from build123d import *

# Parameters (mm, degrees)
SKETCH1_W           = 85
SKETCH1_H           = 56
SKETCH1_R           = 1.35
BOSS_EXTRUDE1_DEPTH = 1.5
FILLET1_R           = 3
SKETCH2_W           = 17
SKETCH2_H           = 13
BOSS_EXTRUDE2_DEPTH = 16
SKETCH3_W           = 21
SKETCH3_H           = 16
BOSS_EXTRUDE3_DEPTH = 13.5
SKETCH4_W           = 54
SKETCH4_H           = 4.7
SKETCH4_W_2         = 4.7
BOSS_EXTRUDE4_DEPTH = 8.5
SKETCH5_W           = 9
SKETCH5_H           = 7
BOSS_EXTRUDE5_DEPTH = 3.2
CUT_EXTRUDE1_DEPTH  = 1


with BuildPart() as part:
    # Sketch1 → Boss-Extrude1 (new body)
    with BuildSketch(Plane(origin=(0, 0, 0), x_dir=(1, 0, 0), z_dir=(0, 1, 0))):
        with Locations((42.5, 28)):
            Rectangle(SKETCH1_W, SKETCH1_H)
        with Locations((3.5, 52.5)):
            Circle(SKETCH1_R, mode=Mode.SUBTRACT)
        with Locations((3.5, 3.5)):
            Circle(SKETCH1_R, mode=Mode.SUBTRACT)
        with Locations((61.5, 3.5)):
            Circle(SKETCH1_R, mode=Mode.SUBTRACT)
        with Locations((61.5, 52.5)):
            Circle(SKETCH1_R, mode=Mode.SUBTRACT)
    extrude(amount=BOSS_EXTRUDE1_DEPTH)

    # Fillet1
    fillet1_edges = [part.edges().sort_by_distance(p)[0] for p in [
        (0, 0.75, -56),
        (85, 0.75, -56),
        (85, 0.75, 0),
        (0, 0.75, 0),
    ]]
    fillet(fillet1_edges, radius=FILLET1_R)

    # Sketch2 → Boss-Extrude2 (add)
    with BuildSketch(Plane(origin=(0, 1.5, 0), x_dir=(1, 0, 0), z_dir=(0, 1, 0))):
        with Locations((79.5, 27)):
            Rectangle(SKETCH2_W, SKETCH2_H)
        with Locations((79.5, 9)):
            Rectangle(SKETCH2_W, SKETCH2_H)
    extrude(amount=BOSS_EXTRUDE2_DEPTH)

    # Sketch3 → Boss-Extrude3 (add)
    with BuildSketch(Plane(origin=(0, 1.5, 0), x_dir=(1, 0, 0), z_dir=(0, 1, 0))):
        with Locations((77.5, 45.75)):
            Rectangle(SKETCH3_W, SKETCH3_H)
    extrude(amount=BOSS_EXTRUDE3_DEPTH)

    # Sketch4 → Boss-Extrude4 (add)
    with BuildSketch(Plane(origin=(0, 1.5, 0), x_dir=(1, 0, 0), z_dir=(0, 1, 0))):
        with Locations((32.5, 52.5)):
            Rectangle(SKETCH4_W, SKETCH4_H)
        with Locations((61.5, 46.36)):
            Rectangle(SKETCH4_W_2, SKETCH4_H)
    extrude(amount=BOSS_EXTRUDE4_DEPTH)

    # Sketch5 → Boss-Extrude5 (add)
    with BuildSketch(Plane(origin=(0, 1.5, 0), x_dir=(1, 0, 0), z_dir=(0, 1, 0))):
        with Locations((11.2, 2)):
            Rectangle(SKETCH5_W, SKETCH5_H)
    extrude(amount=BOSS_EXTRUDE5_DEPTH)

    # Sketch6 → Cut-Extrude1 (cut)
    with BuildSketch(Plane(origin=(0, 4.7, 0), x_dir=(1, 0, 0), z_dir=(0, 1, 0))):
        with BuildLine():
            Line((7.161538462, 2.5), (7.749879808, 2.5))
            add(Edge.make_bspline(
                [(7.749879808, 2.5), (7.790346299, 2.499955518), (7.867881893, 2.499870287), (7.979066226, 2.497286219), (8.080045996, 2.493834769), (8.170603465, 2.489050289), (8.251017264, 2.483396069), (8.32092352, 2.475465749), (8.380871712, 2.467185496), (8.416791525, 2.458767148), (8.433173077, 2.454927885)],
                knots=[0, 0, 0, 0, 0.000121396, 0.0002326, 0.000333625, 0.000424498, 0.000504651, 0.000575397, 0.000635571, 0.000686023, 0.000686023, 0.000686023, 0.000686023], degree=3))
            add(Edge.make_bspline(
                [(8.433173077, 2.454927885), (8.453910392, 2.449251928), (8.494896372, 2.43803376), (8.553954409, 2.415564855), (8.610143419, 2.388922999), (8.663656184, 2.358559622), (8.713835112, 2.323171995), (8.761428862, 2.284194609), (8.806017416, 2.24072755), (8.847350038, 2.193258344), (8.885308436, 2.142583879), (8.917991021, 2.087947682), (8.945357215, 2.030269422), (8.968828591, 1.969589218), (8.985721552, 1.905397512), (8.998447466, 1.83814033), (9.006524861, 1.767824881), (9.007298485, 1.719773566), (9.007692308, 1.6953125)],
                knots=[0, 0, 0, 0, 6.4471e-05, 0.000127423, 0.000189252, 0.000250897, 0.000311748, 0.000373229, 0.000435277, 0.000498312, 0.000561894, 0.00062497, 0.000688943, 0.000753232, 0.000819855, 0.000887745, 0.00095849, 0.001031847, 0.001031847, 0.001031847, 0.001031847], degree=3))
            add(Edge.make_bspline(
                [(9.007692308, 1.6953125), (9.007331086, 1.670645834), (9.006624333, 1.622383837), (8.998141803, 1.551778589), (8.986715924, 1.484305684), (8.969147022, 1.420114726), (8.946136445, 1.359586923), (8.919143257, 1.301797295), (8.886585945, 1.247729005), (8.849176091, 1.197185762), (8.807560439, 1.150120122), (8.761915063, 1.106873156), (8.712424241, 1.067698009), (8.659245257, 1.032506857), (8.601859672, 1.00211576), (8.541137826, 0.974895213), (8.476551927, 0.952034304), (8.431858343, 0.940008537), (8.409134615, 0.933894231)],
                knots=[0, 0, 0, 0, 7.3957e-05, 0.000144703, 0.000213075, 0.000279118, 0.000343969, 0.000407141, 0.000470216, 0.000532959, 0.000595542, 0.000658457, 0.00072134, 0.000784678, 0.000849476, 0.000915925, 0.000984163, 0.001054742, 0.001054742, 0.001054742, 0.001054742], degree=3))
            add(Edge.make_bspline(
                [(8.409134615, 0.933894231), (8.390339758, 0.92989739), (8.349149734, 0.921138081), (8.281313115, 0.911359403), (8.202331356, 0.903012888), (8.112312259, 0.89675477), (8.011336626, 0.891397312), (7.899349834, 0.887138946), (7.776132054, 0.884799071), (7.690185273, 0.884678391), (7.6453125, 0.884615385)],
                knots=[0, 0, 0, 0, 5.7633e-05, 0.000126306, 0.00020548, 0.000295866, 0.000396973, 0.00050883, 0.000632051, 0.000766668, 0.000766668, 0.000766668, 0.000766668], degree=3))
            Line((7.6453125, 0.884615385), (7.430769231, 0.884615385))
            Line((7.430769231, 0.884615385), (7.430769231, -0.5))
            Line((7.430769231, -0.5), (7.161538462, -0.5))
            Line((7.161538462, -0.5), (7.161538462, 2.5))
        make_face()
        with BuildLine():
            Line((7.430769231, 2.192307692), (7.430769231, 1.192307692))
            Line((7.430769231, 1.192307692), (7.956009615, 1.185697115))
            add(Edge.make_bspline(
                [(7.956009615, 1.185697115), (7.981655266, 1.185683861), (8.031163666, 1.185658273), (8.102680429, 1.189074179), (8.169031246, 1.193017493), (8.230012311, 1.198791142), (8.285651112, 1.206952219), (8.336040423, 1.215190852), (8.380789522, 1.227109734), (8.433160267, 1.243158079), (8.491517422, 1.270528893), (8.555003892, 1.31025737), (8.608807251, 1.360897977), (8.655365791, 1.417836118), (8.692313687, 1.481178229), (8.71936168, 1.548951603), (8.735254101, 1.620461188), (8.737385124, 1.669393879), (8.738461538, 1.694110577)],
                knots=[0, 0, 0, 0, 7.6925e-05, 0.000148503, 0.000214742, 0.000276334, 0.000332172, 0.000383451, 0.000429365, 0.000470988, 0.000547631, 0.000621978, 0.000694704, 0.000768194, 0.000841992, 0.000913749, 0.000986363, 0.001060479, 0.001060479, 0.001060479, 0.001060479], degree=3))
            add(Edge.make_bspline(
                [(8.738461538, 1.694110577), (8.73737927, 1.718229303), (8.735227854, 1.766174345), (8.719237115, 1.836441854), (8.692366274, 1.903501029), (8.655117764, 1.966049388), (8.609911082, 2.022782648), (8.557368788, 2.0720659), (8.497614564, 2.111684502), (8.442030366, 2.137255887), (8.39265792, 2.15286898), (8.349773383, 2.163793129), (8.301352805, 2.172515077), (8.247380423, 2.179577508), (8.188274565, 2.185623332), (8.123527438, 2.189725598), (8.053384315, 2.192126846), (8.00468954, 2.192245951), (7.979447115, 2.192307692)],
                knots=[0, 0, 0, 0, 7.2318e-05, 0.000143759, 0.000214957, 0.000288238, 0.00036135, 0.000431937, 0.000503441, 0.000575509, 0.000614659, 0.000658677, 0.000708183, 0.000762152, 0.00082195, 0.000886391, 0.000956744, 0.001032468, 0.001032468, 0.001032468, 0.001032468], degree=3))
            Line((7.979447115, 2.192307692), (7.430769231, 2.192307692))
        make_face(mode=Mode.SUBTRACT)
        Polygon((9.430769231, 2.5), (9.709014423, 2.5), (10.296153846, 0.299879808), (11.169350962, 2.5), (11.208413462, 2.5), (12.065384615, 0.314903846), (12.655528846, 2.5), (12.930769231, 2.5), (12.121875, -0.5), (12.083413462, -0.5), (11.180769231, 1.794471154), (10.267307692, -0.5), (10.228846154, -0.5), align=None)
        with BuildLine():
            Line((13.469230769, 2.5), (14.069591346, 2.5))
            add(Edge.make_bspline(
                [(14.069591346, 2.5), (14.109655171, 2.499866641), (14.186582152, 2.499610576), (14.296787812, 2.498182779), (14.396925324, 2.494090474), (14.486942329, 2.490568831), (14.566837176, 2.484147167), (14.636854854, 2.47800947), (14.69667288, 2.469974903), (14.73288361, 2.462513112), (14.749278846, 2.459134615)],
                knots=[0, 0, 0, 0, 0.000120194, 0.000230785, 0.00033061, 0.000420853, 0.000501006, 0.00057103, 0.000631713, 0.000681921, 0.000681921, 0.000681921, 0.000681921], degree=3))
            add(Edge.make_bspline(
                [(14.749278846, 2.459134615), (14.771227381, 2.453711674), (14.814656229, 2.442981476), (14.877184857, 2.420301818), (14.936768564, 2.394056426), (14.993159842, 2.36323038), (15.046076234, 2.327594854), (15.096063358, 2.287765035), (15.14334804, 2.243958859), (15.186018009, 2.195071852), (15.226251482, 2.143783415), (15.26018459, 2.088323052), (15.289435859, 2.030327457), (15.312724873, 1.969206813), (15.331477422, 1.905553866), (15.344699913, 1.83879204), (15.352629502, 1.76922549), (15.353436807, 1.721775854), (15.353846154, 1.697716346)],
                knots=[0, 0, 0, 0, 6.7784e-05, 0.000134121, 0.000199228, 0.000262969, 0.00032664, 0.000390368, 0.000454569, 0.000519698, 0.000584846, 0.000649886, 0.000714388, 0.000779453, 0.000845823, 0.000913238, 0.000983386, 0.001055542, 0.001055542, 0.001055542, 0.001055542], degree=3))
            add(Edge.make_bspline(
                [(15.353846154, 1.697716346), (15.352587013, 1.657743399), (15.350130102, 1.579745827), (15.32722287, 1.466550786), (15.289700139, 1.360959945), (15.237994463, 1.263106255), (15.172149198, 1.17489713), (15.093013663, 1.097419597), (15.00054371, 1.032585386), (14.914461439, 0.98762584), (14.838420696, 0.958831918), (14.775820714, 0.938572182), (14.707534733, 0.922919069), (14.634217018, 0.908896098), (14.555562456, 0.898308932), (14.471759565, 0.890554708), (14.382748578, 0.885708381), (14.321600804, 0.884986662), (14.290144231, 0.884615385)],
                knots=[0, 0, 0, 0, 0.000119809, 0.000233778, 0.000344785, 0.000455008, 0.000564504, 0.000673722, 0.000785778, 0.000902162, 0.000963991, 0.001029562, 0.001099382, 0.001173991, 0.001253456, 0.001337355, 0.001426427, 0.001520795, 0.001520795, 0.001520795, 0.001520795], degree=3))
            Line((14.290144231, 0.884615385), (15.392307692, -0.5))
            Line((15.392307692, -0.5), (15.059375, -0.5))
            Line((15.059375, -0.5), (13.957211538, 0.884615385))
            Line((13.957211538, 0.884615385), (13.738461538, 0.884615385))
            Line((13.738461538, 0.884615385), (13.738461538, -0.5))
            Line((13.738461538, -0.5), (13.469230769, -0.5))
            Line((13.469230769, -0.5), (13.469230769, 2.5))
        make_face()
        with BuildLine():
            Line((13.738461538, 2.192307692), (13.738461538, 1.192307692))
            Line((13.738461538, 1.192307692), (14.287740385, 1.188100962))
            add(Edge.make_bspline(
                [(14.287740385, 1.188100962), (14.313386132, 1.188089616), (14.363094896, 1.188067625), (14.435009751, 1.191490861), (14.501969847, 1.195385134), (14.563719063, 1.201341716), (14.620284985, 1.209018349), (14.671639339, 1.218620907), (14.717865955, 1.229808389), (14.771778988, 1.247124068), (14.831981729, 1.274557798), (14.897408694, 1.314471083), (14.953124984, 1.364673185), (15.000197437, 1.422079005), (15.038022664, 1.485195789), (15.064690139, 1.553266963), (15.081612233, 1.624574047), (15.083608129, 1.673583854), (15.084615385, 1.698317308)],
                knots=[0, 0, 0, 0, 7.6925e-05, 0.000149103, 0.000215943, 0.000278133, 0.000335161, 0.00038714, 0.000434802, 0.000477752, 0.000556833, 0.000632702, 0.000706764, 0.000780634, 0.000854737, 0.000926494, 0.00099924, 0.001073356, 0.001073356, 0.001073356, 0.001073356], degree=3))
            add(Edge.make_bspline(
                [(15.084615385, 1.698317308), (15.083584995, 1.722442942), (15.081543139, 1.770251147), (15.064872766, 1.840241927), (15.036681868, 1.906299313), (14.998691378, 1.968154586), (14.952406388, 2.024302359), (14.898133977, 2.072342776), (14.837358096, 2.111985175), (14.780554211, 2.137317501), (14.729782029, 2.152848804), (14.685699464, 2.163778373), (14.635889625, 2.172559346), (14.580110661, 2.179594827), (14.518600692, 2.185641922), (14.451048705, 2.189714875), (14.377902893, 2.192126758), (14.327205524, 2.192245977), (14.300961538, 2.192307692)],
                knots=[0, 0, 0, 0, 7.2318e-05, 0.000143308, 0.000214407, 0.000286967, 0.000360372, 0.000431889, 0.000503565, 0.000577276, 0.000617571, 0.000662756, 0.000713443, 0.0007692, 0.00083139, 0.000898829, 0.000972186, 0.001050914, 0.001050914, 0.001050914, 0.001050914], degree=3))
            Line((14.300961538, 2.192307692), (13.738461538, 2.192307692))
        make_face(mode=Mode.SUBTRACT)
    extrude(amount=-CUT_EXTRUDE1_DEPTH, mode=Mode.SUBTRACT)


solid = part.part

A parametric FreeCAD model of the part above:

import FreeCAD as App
import Part
import Sketcher
Q = App.Units.Quantity


def edges_at(feature, points):
    """Names of the edges that pass closest to the given points."""
    edges = feature.Shape.Edges
    near = lambda p: min(range(len(edges)), key=lambda i: edges[i].distToShape(Part.Vertex(*p))[0])
    return sorted({f"Edge{near(p) + 1}" for p in points})


def add_polygon(sketch, points):
    """Adds a closed chain of lines whose ends are joined by coincident constraints."""
    first, n = sketch.GeometryCount, len(points)
    for a, b in zip(points, points[1:] + points[:1]):
        sketch.addGeometry(Part.LineSegment(App.Vector(*a, 0), App.Vector(*b, 0)), False)
    for i in range(n):
        sketch.addConstraint(Sketcher.Constraint("Coincident", first + i, 2, first + (i + 1) % n, 1))

doc = App.newDocument("Part")
body = doc.addObject("PartDesign::Body", "Body")

# Sketch on XZ plane
sketch1 = body.newObject("Sketcher::SketchObject", "Sketch")
sketch1.AttachmentSupport = (doc.getObject("XZ_Plane"), [""])
sketch1.MapMode = "FlatFace"
add_polygon(sketch1, [(0, -56), (0, 0), (85, 0), (85, -56)])  # lines 0-3
sketch1.addGeometry(Part.Circle(App.Vector(3.5, -3.5, 0), App.Vector(0, 0, 1), 1.35), False)  # 4
sketch1.addGeometry(Part.Circle(App.Vector(61.5, -3.5, 0), App.Vector(0, 0, 1), 1.35), False)  # 5
sketch1.addGeometry(Part.Circle(App.Vector(3.5, -52.5, 0), App.Vector(0, 0, 1), 1.35), False)  # 6
sketch1.addGeometry(Part.Circle(App.Vector(61.5, -52.5, 0), App.Vector(0, 0, 1), 1.35), False)  # 7
sketch1.addConstraint([
    Sketcher.Constraint("Vertical", 0),
    Sketcher.Constraint("Horizontal", 1),
    Sketcher.Constraint("Vertical", 2),
    Sketcher.Constraint("Horizontal", 3),
    Sketcher.Constraint("Coincident", 0, 2, -1, 1),
    Sketcher.Constraint("Equal", 4, 5),
    Sketcher.Constraint("Equal", 5, 6),
    Sketcher.Constraint("Equal", 6, 7),
    Sketcher.Constraint("Horizontal", 4, 3, 5, 3),
    Sketcher.Constraint("Horizontal", 6, 3, 7, 3),
    Sketcher.Constraint("Vertical", 4, 3, 6, 3),
    Sketcher.Constraint("Vertical", 5, 3, 7, 3),
    Sketcher.Constraint("Diameter", 4, Q("2.7 mm")),
    Sketcher.Constraint("DistanceX", 1, 1, 1, 2, Q("85 mm")),
    Sketcher.Constraint("DistanceY", 0, 1, 0, 2, Q("56 mm")),
    Sketcher.Constraint("DistanceX", 4, 3, 5, 3, Q("58 mm")),
    Sketcher.Constraint("DistanceY", 6, 3, 4, 3, Q("49 mm")),
    Sketcher.Constraint("DistanceX", -1, 1, 4, 3, Q("3.5 mm")),
    Sketcher.Constraint("DistanceY", 4, 3, -1, 1, Q("3.5 mm")),
])
pad1 = body.newObject("PartDesign::Pad", "Pad")
pad1.Profile = sketch1
pad1.Length = 1.5
pad1.Reversed = True
doc.recompute()

fillet = body.newObject("PartDesign::Fillet", "Fillet")
fillet.Base = (pad1, edges_at(pad1, [
    (0, 0.75, -56),
    (85, 0.75, -56),
    (85, 0.75, 0),
    (0, 0.75, 0),
]))
fillet.Radius = 3

# Sketch on XZ plane
sketch2 = body.newObject("Sketcher::SketchObject", "Sketch001")
sketch2.AttachmentSupport = (doc.getObject("XZ_Plane"), [""])
sketch2.MapMode = "FlatFace"
sketch2.AttachmentOffset = App.Placement(App.Vector(0, 0, -1.5), App.Rotation())
add_polygon(sketch2, [(71, -33.5), (71, -20.5), (88, -20.5), (88, -33.5)])  # lines 0-3
add_polygon(sketch2, [(71, -15.5), (71, -2.5), (88, -2.5), (88, -15.5)])  # lines 4-7
sketch2.addConstraint([
    Sketcher.Constraint("Vertical", 0),
    Sketcher.Constraint("Horizontal", 1),
    Sketcher.Constraint("Vertical", 2),
    Sketcher.Constraint("Horizontal", 3),
    Sketcher.Constraint("Vertical", 4),
    Sketcher.Constraint("Horizontal", 5),
    Sketcher.Constraint("Vertical", 6),
    Sketcher.Constraint("Horizontal", 7),
    Sketcher.Constraint("Vertical", 3, 2, 4, 2),
    Sketcher.Constraint("Vertical", 2, 2, 5, 2),
    Sketcher.Constraint("Equal", 2, 4),
    Sketcher.Constraint("DistanceX", 1, 1, 1, 2, Q("17 mm")),
    Sketcher.Constraint("DistanceY", 0, 1, 0, 2, Q("13 mm")),
    Sketcher.Constraint("DistanceX", -1, 1, 0, 2, Q("71 mm")),
    Sketcher.Constraint("DistanceY", 0, 2, 4, 2, Q("18 mm")),
    Sketcher.Constraint("DistanceY", 0, 2, -1, 1, Q("20.5 mm")),
])
pad2 = body.newObject("PartDesign::Pad", "Pad001")
pad2.Profile = sketch2
pad2.Length = 16
pad2.Reversed = True

# Sketch on XZ plane
sketch3 = body.newObject("Sketcher::SketchObject", "Sketch002")
sketch3.AttachmentSupport = (doc.getObject("XZ_Plane"), [""])
sketch3.MapMode = "FlatFace"
sketch3.AttachmentOffset = App.Placement(App.Vector(0, 0, -1.5), App.Rotation())
add_polygon(sketch3, [(67, -53.75), (67, -37.75), (88, -37.75), (88, -53.75)])  # lines 0-3
sketch3.addConstraint([
    Sketcher.Constraint("Vertical", 0),
    Sketcher.Constraint("Horizontal", 1),
    Sketcher.Constraint("Vertical", 2),
    Sketcher.Constraint("Horizontal", 3),
    Sketcher.Constraint("DistanceX", 1, 1, 1, 2, Q("21 mm")),
    Sketcher.Constraint("DistanceY", 0, 1, 0, 2, Q("16 mm")),
    Sketcher.Constraint("DistanceX", -1, 1, 0, 2, Q("67 mm")),
    Sketcher.Constraint("DistanceY", 0, 2, -1, 1, Q("37.75 mm")),
])
pad3 = body.newObject("PartDesign::Pad", "Pad002")
pad3.Profile = sketch3
pad3.Length = 13.5
pad3.Reversed = True

# Sketch on XZ plane
sketch4 = body.newObject("Sketcher::SketchObject", "Sketch003")
sketch4.AttachmentSupport = (doc.getObject("XZ_Plane"), [""])
sketch4.MapMode = "FlatFace"
sketch4.AttachmentOffset = App.Placement(App.Vector(0, 0, -1.5), App.Rotation())
add_polygon(sketch4, [(5.5, -54.85), (5.5, -50.15), (59.5, -50.15), (59.5, -54.85)])  # lines 0-3
add_polygon(sketch4, [(59.15, -48.71), (59.15, -44.01), (63.85, -44.01), (63.85, -48.71)])  # lines 4-7
sketch4.addConstraint([
    Sketcher.Constraint("Vertical", 0),
    Sketcher.Constraint("Horizontal", 1),
    Sketcher.Constraint("Vertical", 2),
    Sketcher.Constraint("Horizontal", 3),
    Sketcher.Constraint("Vertical", 4),
    Sketcher.Constraint("Horizontal", 5),
    Sketcher.Constraint("Vertical", 6),
    Sketcher.Constraint("Horizontal", 7),
    Sketcher.Constraint("Equal", 7, 0),
    Sketcher.Constraint("Equal", 2, 4),
    Sketcher.Constraint("DistanceX", 1, 1, 1, 2, Q("54 mm")),
    Sketcher.Constraint("DistanceX", 5, 1, 5, 2, Q("4.7 mm")),
    Sketcher.Constraint("DistanceX", -1, 1, 0, 2, Q("5.5 mm")),
    Sketcher.Constraint("DistanceY", 0, 2, -1, 1, Q("50.15 mm")),
    Sketcher.Constraint("DistanceX", -1, 1, 4, 2, Q("59.15 mm")),
    Sketcher.Constraint("DistanceY", 4, 2, -1, 1, Q("44.01 mm")),
])
pad4 = body.newObject("PartDesign::Pad", "Pad003")
pad4.Profile = sketch4
pad4.Length = 8.5
pad4.Reversed = True

# Sketch on XZ plane
sketch5 = body.newObject("Sketcher::SketchObject", "Sketch004")
sketch5.AttachmentSupport = (doc.getObject("XZ_Plane"), [""])
sketch5.MapMode = "FlatFace"
sketch5.AttachmentOffset = App.Placement(App.Vector(0, 0, -1.5), App.Rotation())
add_polygon(sketch5, [(6.7, -5.5), (6.7, 1.5), (15.7, 1.5), (15.7, -5.5)])  # lines 0-3
sketch5.addConstraint([
    Sketcher.Constraint("Vertical", 0),
    Sketcher.Constraint("Horizontal", 1),
    Sketcher.Constraint("Vertical", 2),
    Sketcher.Constraint("Horizontal", 3),
    Sketcher.Constraint("DistanceX", 1, 1, 1, 2, Q("9 mm")),
    Sketcher.Constraint("DistanceY", 0, 1, 0, 2, Q("7 mm")),
    Sketcher.Constraint("DistanceX", -1, 1, 0, 2, Q("6.7 mm")),
    Sketcher.Constraint("DistanceY", -1, 1, 0, 2, Q("1.5 mm")),
])
pad5 = body.newObject("PartDesign::Pad", "Pad004")
pad5.Profile = sketch5
pad5.Length = 3.2
pad5.Reversed = True

# Sketch on XZ plane
sketch6 = body.newObject("Sketcher::SketchObject", "Sketch005")
sketch6.AttachmentSupport = (doc.getObject("XZ_Plane"), [""])
sketch6.MapMode = "FlatFace"
sketch6.AttachmentOffset = App.Placement(App.Vector(0, 0, -4.7), App.Rotation())
sketch6.addGeometry(Part.LineSegment(App.Vector(7.74988, -2.5, 0), App.Vector(7.161538, -2.5, 0)), False)  # 0
sketch6.addGeometry(Part.LineSegment(App.Vector(7.161538, -2.5, 0), App.Vector(7.161538, 0.5, 0)), False)  # 1
sketch6.addGeometry(Part.LineSegment(App.Vector(7.161538, 0.5, 0), App.Vector(7.430769, 0.5, 0)), False)  # 2
sketch6.addGeometry(Part.LineSegment(App.Vector(7.430769, 0.5, 0), App.Vector(7.430769, -0.884615, 0)), False)  # 3
sketch6.addGeometry(Part.LineSegment(App.Vector(7.430769, -0.884615, 0), App.Vector(7.645313, -0.884615, 0)), False)  # 4
sketch6.addGeometry(Part.BSplineCurve([App.Vector(8.409135, -0.933894, 0), App.Vector(8.39034, -0.929897, 0), App.Vector(8.34915, -0.921138, 0), App.Vector(8.281313, -0.911359, 0), App.Vector(8.202331, -0.903013, 0), App.Vector(8.112312, -0.896755, 0), App.Vector(8.011337, -0.891397, 0), App.Vector(7.89935, -0.887139, 0), App.Vector(7.776132, -0.884799, 0), App.Vector(7.690185, -0.884678, 0), App.Vector(7.645313, -0.884615, 0)], [4, 1, 1, 1, 1, 1, 1, 1, 4], [0, 0.000057633, 0.000126306, 0.00020548, 0.000295866, 0.000396973, 0.00050883, 0.000632051, 0.000766668], False, 3, [1, 1, 1, 1, 1, 1, 1, 1, 1, 1, 1], False), False)  # 5
sketch6.addGeometry(Part.BSplineCurve([App.Vector(9.007692, -1.695312, 0), App.Vector(9.007331, -1.670646, 0), App.Vector(9.006624, -1.622384, 0), App.Vector(8.998142, -1.551779, 0), App.Vector(8.986716, -1.484306, 0), App.Vector(8.969147, -1.420115, 0), App.Vector(8.946136, -1.359587, 0), App.Vector(8.919143, -1.301797, 0), App.Vector(8.886586, -1.247729, 0), App.Vector(8.849176, -1.197186, 0), App.Vector(8.80756, -1.15012, 0), App.Vector(8.761915, -1.106873, 0), App.Vector(8.712424, -1.067698, 0), App.Vector(8.659245, -1.032507, 0), App.Vector(8.60186, -1.002116, 0), App.Vector(8.541138, -0.974895, 0), App.Vector(8.476552, -0.952034, 0), App.Vector(8.431858, -0.940009, 0), App.Vector(8.409135, -0.933894, 0)], [4, 1, 1, 1, 1, 1, 1, 1, 1, 1, 1, 1, 1, 1, 1, 1, 4], [0, 0.000073957, 0.000144703, 0.000213075, 0.000279118, 0.000343969, 0.000407141, 0.000470216, 0.000532959, 0.000595542, 0.000658457, 0.00072134, 0.000784678, 0.000849476, 0.000915925, 0.000984163, 0.001054742], False, 3, [1, 1, 1, 1, 1, 1, 1, 1, 1, 1, 1, 1, 1, 1, 1, 1, 1, 1, 1], False), False)  # 6
sketch6.addGeometry(Part.BSplineCurve([App.Vector(8.433173, -2.454928, 0), App.Vector(8.45391, -2.449252, 0), App.Vector(8.494896, -2.438034, 0), App.Vector(8.553954, -2.415565, 0), App.Vector(8.610143, -2.388923, 0), App.Vector(8.663656, -2.35856, 0), App.Vector(8.713835, -2.323172, 0), App.Vector(8.761429, -2.284195, 0), App.Vector(8.806017, -2.240728, 0), App.Vector(8.84735, -2.193258, 0), App.Vector(8.885308, -2.142584, 0), App.Vector(8.917991, -2.087948, 0), App.Vector(8.945357, -2.030269, 0), App.Vector(8.968829, -1.969589, 0), App.Vector(8.985722, -1.905398, 0), App.Vector(8.998447, -1.83814, 0), App.Vector(9.006525, -1.767825, 0), App.Vector(9.007298, -1.719774, 0), App.Vector(9.007692, -1.695312, 0)], [4, 1, 1, 1, 1, 1, 1, 1, 1, 1, 1, 1, 1, 1, 1, 1, 4], [0, 0.000064471, 0.000127423, 0.000189252, 0.000250897, 0.000311748, 0.000373229, 0.000435277, 0.000498312, 0.000561894, 0.00062497, 0.000688943, 0.000753232, 0.000819855, 0.000887745, 0.00095849, 0.001031847], False, 3, [1, 1, 1, 1, 1, 1, 1, 1, 1, 1, 1, 1, 1, 1, 1, 1, 1, 1, 1], False), False)  # 7
sketch6.addGeometry(Part.BSplineCurve([App.Vector(7.74988, -2.5, 0), App.Vector(7.790346, -2.499956, 0), App.Vector(7.867882, -2.49987, 0), App.Vector(7.979066, -2.497286, 0), App.Vector(8.080046, -2.493835, 0), App.Vector(8.170603, -2.48905, 0), App.Vector(8.251017, -2.483396, 0), App.Vector(8.320924, -2.475466, 0), App.Vector(8.380872, -2.467185, 0), App.Vector(8.416792, -2.458767, 0), App.Vector(8.433173, -2.454928, 0)], [4, 1, 1, 1, 1, 1, 1, 1, 4], [0, 0.000121396, 0.0002326, 0.000333625, 0.000424498, 0.000504651, 0.000575397, 0.000635571, 0.000686023], False, 3, [1, 1, 1, 1, 1, 1, 1, 1, 1, 1, 1], False), False)  # 8
sketch6.addGeometry(Part.LineSegment(App.Vector(7.430769, -2.192308, 0), App.Vector(7.979447, -2.192308, 0)), False)  # 9
sketch6.addGeometry(Part.BSplineCurve([App.Vector(8.738462, -1.694111, 0), App.Vector(8.737379, -1.718229, 0), App.Vector(8.735228, -1.766174, 0), App.Vector(8.719237, -1.836442, 0), App.Vector(8.692366, -1.903501, 0), App.Vector(8.655118, -1.966049, 0), App.Vector(8.609911, -2.022783, 0), App.Vector(8.557369, -2.072066, 0), App.Vector(8.497615, -2.111685, 0), App.Vector(8.44203, -2.137256, 0), App.Vector(8.392658, -2.152869, 0), App.Vector(8.349773, -2.163793, 0), App.Vector(8.301353, -2.172515, 0), App.Vector(8.24738, -2.179578, 0), App.Vector(8.188275, -2.185623, 0), App.Vector(8.123527, -2.189726, 0), App.Vector(8.053384, -2.192127, 0), App.Vector(8.00469, -2.192246, 0), App.Vector(7.979447, -2.192308, 0)], [4, 1, 1, 1, 1, 1, 1, 1, 1, 1, 1, 1, 1, 1, 1, 1, 4], [0, 0.000072318, 0.000143759, 0.000214957, 0.000288238, 0.00036135, 0.000431937, 0.000503441, 0.000575509, 0.000614659, 0.000658677, 0.000708183, 0.000762152, 0.00082195, 0.000886391, 0.000956744, 0.001032468], False, 3, [1, 1, 1, 1, 1, 1, 1, 1, 1, 1, 1, 1, 1, 1, 1, 1, 1, 1, 1], False), False)  # 10
sketch6.addGeometry(Part.BSplineCurve([App.Vector(7.95601, -1.185697, 0), App.Vector(7.981655, -1.185684, 0), App.Vector(8.031164, -1.185658, 0), App.Vector(8.10268, -1.189074, 0), App.Vector(8.169031, -1.193017, 0), App.Vector(8.230012, -1.198791, 0), App.Vector(8.285651, -1.206952, 0), App.Vector(8.33604, -1.215191, 0), App.Vector(8.38079, -1.22711, 0), App.Vector(8.43316, -1.243158, 0), App.Vector(8.491517, -1.270529, 0), App.Vector(8.555004, -1.310257, 0), App.Vector(8.608807, -1.360898, 0), App.Vector(8.655366, -1.417836, 0), App.Vector(8.692314, -1.481178, 0), App.Vector(8.719362, -1.548952, 0), App.Vector(8.735254, -1.620461, 0), App.Vector(8.737385, -1.669394, 0), App.Vector(8.738462, -1.694111, 0)], [4, 1, 1, 1, 1, 1, 1, 1, 1, 1, 1, 1, 1, 1, 1, 1, 4], [0, 0.000076925, 0.000148503, 0.000214742, 0.000276334, 0.000332172, 0.000383451, 0.000429365, 0.000470988, 0.000547631, 0.000621978, 0.000694704, 0.000768194, 0.000841992, 0.000913749, 0.000986363, 0.001060479], False, 3, [1, 1, 1, 1, 1, 1, 1, 1, 1, 1, 1, 1, 1, 1, 1, 1, 1, 1, 1], False), False)  # 11
sketch6.addGeometry(Part.LineSegment(App.Vector(7.95601, -1.185697, 0), App.Vector(7.430769, -1.192308, 0)), False)  # 12
sketch6.addGeometry(Part.LineSegment(App.Vector(7.430769, -1.192308, 0), App.Vector(7.430769, -2.192308, 0)), False)  # 13
add_polygon(sketch6, [(9.709014, -2.5), (9.430769, -2.5), (10.228846, 0.5), (10.267308, 0.5), (11.180769, -1.794471), (12.083413, 0.5), (12.121875, 0.5), (12.930769, -2.5), (12.655529, -2.5), (12.065385, -0.314904), (11.208413, -2.5), (11.169351, -2.5), (10.296154, -0.29988)])  # lines 14-26
sketch6.addGeometry(Part.LineSegment(App.Vector(14.069591, -2.5, 0), App.Vector(13.469231, -2.5, 0)), False)  # 27
sketch6.addGeometry(Part.LineSegment(App.Vector(13.469231, -2.5, 0), App.Vector(13.469231, 0.5, 0)), False)  # 28
sketch6.addGeometry(Part.LineSegment(App.Vector(13.469231, 0.5, 0), App.Vector(13.738462, 0.5, 0)), False)  # 29
sketch6.addGeometry(Part.LineSegment(App.Vector(13.738462, 0.5, 0), App.Vector(13.738462, -0.884615, 0)), False)  # 30
sketch6.addGeometry(Part.LineSegment(App.Vector(13.738462, -0.884615, 0), App.Vector(13.957212, -0.884615, 0)), False)  # 31
sketch6.addGeometry(Part.LineSegment(App.Vector(13.957212, -0.884615, 0), App.Vector(15.059375, 0.5, 0)), False)  # 32
sketch6.addGeometry(Part.LineSegment(App.Vector(15.059375, 0.5, 0), App.Vector(15.392308, 0.5, 0)), False)  # 33
sketch6.addGeometry(Part.LineSegment(App.Vector(15.392308, 0.5, 0), App.Vector(14.290144, -0.884615, 0)), False)  # 34
sketch6.addGeometry(Part.BSplineCurve([App.Vector(15.353846, -1.697716, 0), App.Vector(15.352587, -1.657743, 0), App.Vector(15.35013, -1.579746, 0), App.Vector(15.327223, -1.466551, 0), App.Vector(15.2897, -1.36096, 0), App.Vector(15.237994, -1.263106, 0), App.Vector(15.172149, -1.174897, 0), App.Vector(15.093014, -1.09742, 0), App.Vector(15.000544, -1.032585, 0), App.Vector(14.914461, -0.987626, 0), App.Vector(14.838421, -0.958832, 0), App.Vector(14.775821, -0.938572, 0), App.Vector(14.707535, -0.922919, 0), App.Vector(14.634217, -0.908896, 0), App.Vector(14.555562, -0.898309, 0), App.Vector(14.47176, -0.890555, 0), App.Vector(14.382749, -0.885708, 0), App.Vector(14.321601, -0.884987, 0), App.Vector(14.290144, -0.884615, 0)], [4, 1, 1, 1, 1, 1, 1, 1, 1, 1, 1, 1, 1, 1, 1, 1, 4], [0, 0.000119809, 0.000233778, 0.000344785, 0.000455008, 0.000564504, 0.000673722, 0.000785778, 0.000902162, 0.000963991, 0.001029562, 0.001099382, 0.001173991, 0.001253456, 0.001337355, 0.001426427, 0.001520795], False, 3, [1, 1, 1, 1, 1, 1, 1, 1, 1, 1, 1, 1, 1, 1, 1, 1, 1, 1, 1], False), False)  # 35
sketch6.addGeometry(Part.BSplineCurve([App.Vector(14.749279, -2.459135, 0), App.Vector(14.771227, -2.453712, 0), App.Vector(14.814656, -2.442981, 0), App.Vector(14.877185, -2.420302, 0), App.Vector(14.936769, -2.394056, 0), App.Vector(14.99316, -2.36323, 0), App.Vector(15.046076, -2.327595, 0), App.Vector(15.096063, -2.287765, 0), App.Vector(15.143348, -2.243959, 0), App.Vector(15.186018, -2.195072, 0), App.Vector(15.226251, -2.143783, 0), App.Vector(15.260185, -2.088323, 0), App.Vector(15.289436, -2.030327, 0), App.Vector(15.312725, -1.969207, 0), App.Vector(15.331477, -1.905554, 0), App.Vector(15.3447, -1.838792, 0), App.Vector(15.35263, -1.769225, 0), App.Vector(15.353437, -1.721776, 0), App.Vector(15.353846, -1.697716, 0)], [4, 1, 1, 1, 1, 1, 1, 1, 1, 1, 1, 1, 1, 1, 1, 1, 4], [0, 0.000067784, 0.000134121, 0.000199228, 0.000262969, 0.00032664, 0.000390368, 0.000454569, 0.000519698, 0.000584846, 0.000649886, 0.000714388, 0.000779453, 0.000845823, 0.000913238, 0.000983386, 0.001055542], False, 3, [1, 1, 1, 1, 1, 1, 1, 1, 1, 1, 1, 1, 1, 1, 1, 1, 1, 1, 1], False), False)  # 36
sketch6.addGeometry(Part.BSplineCurve([App.Vector(14.069591, -2.5, 0), App.Vector(14.109655, -2.499867, 0), App.Vector(14.186582, -2.499611, 0), App.Vector(14.296788, -2.498183, 0), App.Vector(14.396925, -2.49409, 0), App.Vector(14.486942, -2.490569, 0), App.Vector(14.566837, -2.484147, 0), App.Vector(14.636855, -2.478009, 0), App.Vector(14.696673, -2.469975, 0), App.Vector(14.732884, -2.462513, 0), App.Vector(14.749279, -2.459135, 0)], [4, 1, 1, 1, 1, 1, 1, 1, 4], [0, 0.000120194, 0.000230785, 0.00033061, 0.000420853, 0.000501006, 0.00057103, 0.000631713, 0.000681921], False, 3, [1, 1, 1, 1, 1, 1, 1, 1, 1, 1, 1], False), False)  # 37
sketch6.addGeometry(Part.LineSegment(App.Vector(13.738462, -2.192308, 0), App.Vector(14.300962, -2.192308, 0)), False)  # 38
sketch6.addGeometry(Part.BSplineCurve([App.Vector(15.084615, -1.698317, 0), App.Vector(15.083585, -1.722443, 0), App.Vector(15.081543, -1.770251, 0), App.Vector(15.064873, -1.840242, 0), App.Vector(15.036682, -1.906299, 0), App.Vector(14.998691, -1.968155, 0), App.Vector(14.952406, -2.024302, 0), App.Vector(14.898134, -2.072343, 0), App.Vector(14.837358, -2.111985, 0), App.Vector(14.780554, -2.137318, 0), App.Vector(14.729782, -2.152849, 0), App.Vector(14.685699, -2.163778, 0), App.Vector(14.63589, -2.172559, 0), App.Vector(14.580111, -2.179595, 0), App.Vector(14.518601, -2.185642, 0), App.Vector(14.451049, -2.189715, 0), App.Vector(14.377903, -2.192127, 0), App.Vector(14.327206, -2.192246, 0), App.Vector(14.300962, -2.192308, 0)], [4, 1, 1, 1, 1, 1, 1, 1, 1, 1, 1, 1, 1, 1, 1, 1, 4], [0, 0.000072318, 0.000143308, 0.000214407, 0.000286967, 0.000360372, 0.000431889, 0.000503565, 0.000577276, 0.000617571, 0.000662756, 0.000713443, 0.0007692, 0.00083139, 0.000898829, 0.000972186, 0.001050914], False, 3, [1, 1, 1, 1, 1, 1, 1, 1, 1, 1, 1, 1, 1, 1, 1, 1, 1, 1, 1], False), False)  # 39
sketch6.addGeometry(Part.BSplineCurve([App.Vector(14.28774, -1.188101, 0), App.Vector(14.313386, -1.18809, 0), App.Vector(14.363095, -1.188068, 0), App.Vector(14.43501, -1.191491, 0), App.Vector(14.50197, -1.195385, 0), App.Vector(14.563719, -1.201342, 0), App.Vector(14.620285, -1.209018, 0), App.Vector(14.671639, -1.218621, 0), App.Vector(14.717866, -1.229808, 0), App.Vector(14.771779, -1.247124, 0), App.Vector(14.831982, -1.274558, 0), App.Vector(14.897409, -1.314471, 0), App.Vector(14.953125, -1.364673, 0), App.Vector(15.000197, -1.422079, 0), App.Vector(15.038023, -1.485196, 0), App.Vector(15.06469, -1.553267, 0), App.Vector(15.081612, -1.624574, 0), App.Vector(15.083608, -1.673584, 0), App.Vector(15.084615, -1.698317, 0)], [4, 1, 1, 1, 1, 1, 1, 1, 1, 1, 1, 1, 1, 1, 1, 1, 4], [0, 0.000076925, 0.000149103, 0.000215943, 0.000278133, 0.000335161, 0.00038714, 0.000434802, 0.000477752, 0.000556833, 0.000632702, 0.000706764, 0.000780634, 0.000854737, 0.000926494, 0.00099924, 0.001073356], False, 3, [1, 1, 1, 1, 1, 1, 1, 1, 1, 1, 1, 1, 1, 1, 1, 1, 1, 1, 1], False), False)  # 40
sketch6.addGeometry(Part.LineSegment(App.Vector(14.28774, -1.188101, 0), App.Vector(13.738462, -1.192308, 0)), False)  # 41
sketch6.addGeometry(Part.LineSegment(App.Vector(13.738462, -1.192308, 0), App.Vector(13.738462, -2.192308, 0)), False)  # 42
sketch6.addConstraint([
    Sketcher.Constraint("Block", 5),
    Sketcher.Constraint("Block", 6),
    Sketcher.Constraint("Block", 7),
    Sketcher.Constraint("Block", 8),
    Sketcher.Constraint("Block", 10),
    Sketcher.Constraint("Block", 11),
    Sketcher.Constraint("Block", 35),
    Sketcher.Constraint("Block", 36),
    Sketcher.Constraint("Block", 37),
    Sketcher.Constraint("Block", 39),
    Sketcher.Constraint("Block", 40),
    Sketcher.Constraint("Coincident", 0, 2, 1, 1),
    Sketcher.Constraint("Coincident", 1, 2, 2, 1),
    Sketcher.Constraint("Coincident", 2, 2, 3, 1),
    Sketcher.Constraint("Coincident", 3, 2, 4, 1),
    Sketcher.Constraint("Coincident", 4, 2, 5, 2),
    Sketcher.Constraint("Coincident", 8, 1, 0, 1),
    Sketcher.Constraint("Coincident", 9, 2, 10, 2),
    Sketcher.Constraint("Coincident", 11, 1, 12, 1),
    Sketcher.Constraint("Coincident", 12, 2, 13, 1),
    Sketcher.Constraint("Coincident", 13, 2, 9, 1),
    Sketcher.Constraint("Coincident", 27, 2, 28, 1),
    Sketcher.Constraint("Coincident", 28, 2, 29, 1),
    Sketcher.Constraint("Coincident", 29, 2, 30, 1),
    Sketcher.Constraint("Coincident", 30, 2, 31, 1),
    Sketcher.Constraint("Coincident", 31, 2, 32, 1),
    Sketcher.Constraint("Coincident", 32, 2, 33, 1),
    Sketcher.Constraint("Coincident", 33, 2, 34, 1),
    Sketcher.Constraint("Coincident", 34, 2, 35, 2),
    Sketcher.Constraint("Coincident", 37, 1, 27, 1),
    Sketcher.Constraint("Coincident", 38, 2, 39, 2),
    Sketcher.Constraint("Coincident", 40, 1, 41, 1),
    Sketcher.Constraint("Coincident", 41, 2, 42, 1),
    Sketcher.Constraint("Coincident", 42, 2, 38, 1),
    Sketcher.Constraint("Horizontal", 0),
    Sketcher.Constraint("Vertical", 1),
    Sketcher.Constraint("Horizontal", 2),
    Sketcher.Constraint("Vertical", 3),
    Sketcher.Constraint("Horizontal", 4),
    Sketcher.Constraint("Horizontal", 9),
    Sketcher.Constraint("Vertical", 13),
    Sketcher.Constraint("Horizontal", 14),
    Sketcher.Constraint("Horizontal", 16),
    Sketcher.Constraint("Horizontal", 19),
    Sketcher.Constraint("Horizontal", 21),
    Sketcher.Constraint("Horizontal", 24),
    Sketcher.Constraint("Horizontal", 27),
    Sketcher.Constraint("Vertical", 28),
    Sketcher.Constraint("Horizontal", 29),
    Sketcher.Constraint("Vertical", 30),
    Sketcher.Constraint("Horizontal", 31),
    Sketcher.Constraint("Horizontal", 33),
    Sketcher.Constraint("Horizontal", 38),
    Sketcher.Constraint("Vertical", 42),
    Sketcher.Constraint("DistanceY", 1, 1, 1, 2, Q("3 mm")),
    Sketcher.Constraint("DistanceY", 13, 2, 13, 1, Q("1 mm")),
    Sketcher.Constraint("DistanceY", 28, 1, 28, 2, Q("3 mm")),
    Sketcher.Constraint("DistanceY", 42, 2, 42, 1, Q("1 mm")),
    Sketcher.Constraint("DistanceX", 13, 2, 14, 2, Q("2 mm")),
    Sketcher.Constraint("DistanceY", 14, 2, 15, 2, Q("3 mm")),
    Sketcher.Constraint("DistanceY", 14, 2, 18, 2, Q("3 mm")),
    Sketcher.Constraint("DistanceY", 20, 2, 19, 2, Q("3 mm")),
    Sketcher.Constraint("DistanceY", 20, 2, 28, 2, Q("3 mm")),
    Sketcher.Constraint("DistanceY", 23, 2, -1, 1, Q("2.5 mm")),
    Sketcher.Constraint("DistanceY", -1, 1, 32, 2, Q("0.5 mm")),
    Sketcher.Constraint("DistanceX", 14, 2, 20, 2, Q("3.5 mm")),
    Sketcher.Constraint("DistanceX", 14, 2, 17, 2, Q("1.75 mm")),
    Sketcher.Constraint("DistanceX", 38, 1, 38, 2, Q("0.5625 mm")),
    Sketcher.Constraint("DistanceX", 0, 2, 0, 1, Q("0.588341 mm")),
    Sketcher.Constraint("DistanceX", 2, 1, 2, 2, Q("0.269231 mm")),
    Sketcher.Constraint("DistanceX", 16, 1, 16, 2, Q("0.038462 mm")),
    Sketcher.Constraint("DistanceX", 19, 1, 19, 2, Q("0.038462 mm")),
    Sketcher.Constraint("DistanceX", 21, 2, 21, 1, Q("0.27524 mm")),
    Sketcher.Constraint("DistanceX", 27, 2, 27, 1, Q("0.600361 mm")),
    Sketcher.Constraint("DistanceX", 29, 1, 29, 2, Q("0.269231 mm")),
    Sketcher.Constraint("DistanceX", 31, 1, 31, 2, Q("0.21875 mm")),
    Sketcher.Constraint("DistanceX", 4, 2, 18, 2, Q("4.438101 mm")),
    Sketcher.Constraint("DistanceX", 26, 2, 23, 2, Q("1.499399 mm")),
    Sketcher.Constraint("DistanceX", 21, 2, 27, 2, Q("0.813702 mm")),
    Sketcher.Constraint("DistanceX", 19, 2, 32, 2, Q("2.9375 mm")),
    Sketcher.Constraint("Distance", 15, Q("3.10434 mm")),
    Sketcher.Constraint("DistanceX", 14, 2, 14, 1, Q("0.278245 mm")),
    Sketcher.Constraint("DistanceX", 24, 2, 24, 1, Q("0.039062 mm")),
    Sketcher.Constraint("DistanceX", 33, 1, 33, 2, Q("0.332933 mm")),
    Sketcher.Constraint("DistanceY", 30, 2, 30, 1, Q("1.384615 mm")),
    Sketcher.Constraint("DistanceY", 17, 2, -1, 1, Q("1.794471 mm")),
    Sketcher.Constraint("DistanceY", 25, 2, -1, 1, Q("0.29988 mm")),
    Sketcher.Constraint("DistanceX", 22, 2, 18, 2, Q("0.018029 mm")),
    Sketcher.Constraint("DistanceX", 25, 2, 22, 2, Q("1.769231 mm")),
    Sketcher.Constraint("DistanceY", 30, 2, 22, 2, Q("0.569712 mm")),
])
pocket1 = body.newObject("PartDesign::Pocket", "Pocket")
pocket1.Profile = sketch6
pocket1.Length = 1
pocket1.Reversed = True

doc.recompute()
